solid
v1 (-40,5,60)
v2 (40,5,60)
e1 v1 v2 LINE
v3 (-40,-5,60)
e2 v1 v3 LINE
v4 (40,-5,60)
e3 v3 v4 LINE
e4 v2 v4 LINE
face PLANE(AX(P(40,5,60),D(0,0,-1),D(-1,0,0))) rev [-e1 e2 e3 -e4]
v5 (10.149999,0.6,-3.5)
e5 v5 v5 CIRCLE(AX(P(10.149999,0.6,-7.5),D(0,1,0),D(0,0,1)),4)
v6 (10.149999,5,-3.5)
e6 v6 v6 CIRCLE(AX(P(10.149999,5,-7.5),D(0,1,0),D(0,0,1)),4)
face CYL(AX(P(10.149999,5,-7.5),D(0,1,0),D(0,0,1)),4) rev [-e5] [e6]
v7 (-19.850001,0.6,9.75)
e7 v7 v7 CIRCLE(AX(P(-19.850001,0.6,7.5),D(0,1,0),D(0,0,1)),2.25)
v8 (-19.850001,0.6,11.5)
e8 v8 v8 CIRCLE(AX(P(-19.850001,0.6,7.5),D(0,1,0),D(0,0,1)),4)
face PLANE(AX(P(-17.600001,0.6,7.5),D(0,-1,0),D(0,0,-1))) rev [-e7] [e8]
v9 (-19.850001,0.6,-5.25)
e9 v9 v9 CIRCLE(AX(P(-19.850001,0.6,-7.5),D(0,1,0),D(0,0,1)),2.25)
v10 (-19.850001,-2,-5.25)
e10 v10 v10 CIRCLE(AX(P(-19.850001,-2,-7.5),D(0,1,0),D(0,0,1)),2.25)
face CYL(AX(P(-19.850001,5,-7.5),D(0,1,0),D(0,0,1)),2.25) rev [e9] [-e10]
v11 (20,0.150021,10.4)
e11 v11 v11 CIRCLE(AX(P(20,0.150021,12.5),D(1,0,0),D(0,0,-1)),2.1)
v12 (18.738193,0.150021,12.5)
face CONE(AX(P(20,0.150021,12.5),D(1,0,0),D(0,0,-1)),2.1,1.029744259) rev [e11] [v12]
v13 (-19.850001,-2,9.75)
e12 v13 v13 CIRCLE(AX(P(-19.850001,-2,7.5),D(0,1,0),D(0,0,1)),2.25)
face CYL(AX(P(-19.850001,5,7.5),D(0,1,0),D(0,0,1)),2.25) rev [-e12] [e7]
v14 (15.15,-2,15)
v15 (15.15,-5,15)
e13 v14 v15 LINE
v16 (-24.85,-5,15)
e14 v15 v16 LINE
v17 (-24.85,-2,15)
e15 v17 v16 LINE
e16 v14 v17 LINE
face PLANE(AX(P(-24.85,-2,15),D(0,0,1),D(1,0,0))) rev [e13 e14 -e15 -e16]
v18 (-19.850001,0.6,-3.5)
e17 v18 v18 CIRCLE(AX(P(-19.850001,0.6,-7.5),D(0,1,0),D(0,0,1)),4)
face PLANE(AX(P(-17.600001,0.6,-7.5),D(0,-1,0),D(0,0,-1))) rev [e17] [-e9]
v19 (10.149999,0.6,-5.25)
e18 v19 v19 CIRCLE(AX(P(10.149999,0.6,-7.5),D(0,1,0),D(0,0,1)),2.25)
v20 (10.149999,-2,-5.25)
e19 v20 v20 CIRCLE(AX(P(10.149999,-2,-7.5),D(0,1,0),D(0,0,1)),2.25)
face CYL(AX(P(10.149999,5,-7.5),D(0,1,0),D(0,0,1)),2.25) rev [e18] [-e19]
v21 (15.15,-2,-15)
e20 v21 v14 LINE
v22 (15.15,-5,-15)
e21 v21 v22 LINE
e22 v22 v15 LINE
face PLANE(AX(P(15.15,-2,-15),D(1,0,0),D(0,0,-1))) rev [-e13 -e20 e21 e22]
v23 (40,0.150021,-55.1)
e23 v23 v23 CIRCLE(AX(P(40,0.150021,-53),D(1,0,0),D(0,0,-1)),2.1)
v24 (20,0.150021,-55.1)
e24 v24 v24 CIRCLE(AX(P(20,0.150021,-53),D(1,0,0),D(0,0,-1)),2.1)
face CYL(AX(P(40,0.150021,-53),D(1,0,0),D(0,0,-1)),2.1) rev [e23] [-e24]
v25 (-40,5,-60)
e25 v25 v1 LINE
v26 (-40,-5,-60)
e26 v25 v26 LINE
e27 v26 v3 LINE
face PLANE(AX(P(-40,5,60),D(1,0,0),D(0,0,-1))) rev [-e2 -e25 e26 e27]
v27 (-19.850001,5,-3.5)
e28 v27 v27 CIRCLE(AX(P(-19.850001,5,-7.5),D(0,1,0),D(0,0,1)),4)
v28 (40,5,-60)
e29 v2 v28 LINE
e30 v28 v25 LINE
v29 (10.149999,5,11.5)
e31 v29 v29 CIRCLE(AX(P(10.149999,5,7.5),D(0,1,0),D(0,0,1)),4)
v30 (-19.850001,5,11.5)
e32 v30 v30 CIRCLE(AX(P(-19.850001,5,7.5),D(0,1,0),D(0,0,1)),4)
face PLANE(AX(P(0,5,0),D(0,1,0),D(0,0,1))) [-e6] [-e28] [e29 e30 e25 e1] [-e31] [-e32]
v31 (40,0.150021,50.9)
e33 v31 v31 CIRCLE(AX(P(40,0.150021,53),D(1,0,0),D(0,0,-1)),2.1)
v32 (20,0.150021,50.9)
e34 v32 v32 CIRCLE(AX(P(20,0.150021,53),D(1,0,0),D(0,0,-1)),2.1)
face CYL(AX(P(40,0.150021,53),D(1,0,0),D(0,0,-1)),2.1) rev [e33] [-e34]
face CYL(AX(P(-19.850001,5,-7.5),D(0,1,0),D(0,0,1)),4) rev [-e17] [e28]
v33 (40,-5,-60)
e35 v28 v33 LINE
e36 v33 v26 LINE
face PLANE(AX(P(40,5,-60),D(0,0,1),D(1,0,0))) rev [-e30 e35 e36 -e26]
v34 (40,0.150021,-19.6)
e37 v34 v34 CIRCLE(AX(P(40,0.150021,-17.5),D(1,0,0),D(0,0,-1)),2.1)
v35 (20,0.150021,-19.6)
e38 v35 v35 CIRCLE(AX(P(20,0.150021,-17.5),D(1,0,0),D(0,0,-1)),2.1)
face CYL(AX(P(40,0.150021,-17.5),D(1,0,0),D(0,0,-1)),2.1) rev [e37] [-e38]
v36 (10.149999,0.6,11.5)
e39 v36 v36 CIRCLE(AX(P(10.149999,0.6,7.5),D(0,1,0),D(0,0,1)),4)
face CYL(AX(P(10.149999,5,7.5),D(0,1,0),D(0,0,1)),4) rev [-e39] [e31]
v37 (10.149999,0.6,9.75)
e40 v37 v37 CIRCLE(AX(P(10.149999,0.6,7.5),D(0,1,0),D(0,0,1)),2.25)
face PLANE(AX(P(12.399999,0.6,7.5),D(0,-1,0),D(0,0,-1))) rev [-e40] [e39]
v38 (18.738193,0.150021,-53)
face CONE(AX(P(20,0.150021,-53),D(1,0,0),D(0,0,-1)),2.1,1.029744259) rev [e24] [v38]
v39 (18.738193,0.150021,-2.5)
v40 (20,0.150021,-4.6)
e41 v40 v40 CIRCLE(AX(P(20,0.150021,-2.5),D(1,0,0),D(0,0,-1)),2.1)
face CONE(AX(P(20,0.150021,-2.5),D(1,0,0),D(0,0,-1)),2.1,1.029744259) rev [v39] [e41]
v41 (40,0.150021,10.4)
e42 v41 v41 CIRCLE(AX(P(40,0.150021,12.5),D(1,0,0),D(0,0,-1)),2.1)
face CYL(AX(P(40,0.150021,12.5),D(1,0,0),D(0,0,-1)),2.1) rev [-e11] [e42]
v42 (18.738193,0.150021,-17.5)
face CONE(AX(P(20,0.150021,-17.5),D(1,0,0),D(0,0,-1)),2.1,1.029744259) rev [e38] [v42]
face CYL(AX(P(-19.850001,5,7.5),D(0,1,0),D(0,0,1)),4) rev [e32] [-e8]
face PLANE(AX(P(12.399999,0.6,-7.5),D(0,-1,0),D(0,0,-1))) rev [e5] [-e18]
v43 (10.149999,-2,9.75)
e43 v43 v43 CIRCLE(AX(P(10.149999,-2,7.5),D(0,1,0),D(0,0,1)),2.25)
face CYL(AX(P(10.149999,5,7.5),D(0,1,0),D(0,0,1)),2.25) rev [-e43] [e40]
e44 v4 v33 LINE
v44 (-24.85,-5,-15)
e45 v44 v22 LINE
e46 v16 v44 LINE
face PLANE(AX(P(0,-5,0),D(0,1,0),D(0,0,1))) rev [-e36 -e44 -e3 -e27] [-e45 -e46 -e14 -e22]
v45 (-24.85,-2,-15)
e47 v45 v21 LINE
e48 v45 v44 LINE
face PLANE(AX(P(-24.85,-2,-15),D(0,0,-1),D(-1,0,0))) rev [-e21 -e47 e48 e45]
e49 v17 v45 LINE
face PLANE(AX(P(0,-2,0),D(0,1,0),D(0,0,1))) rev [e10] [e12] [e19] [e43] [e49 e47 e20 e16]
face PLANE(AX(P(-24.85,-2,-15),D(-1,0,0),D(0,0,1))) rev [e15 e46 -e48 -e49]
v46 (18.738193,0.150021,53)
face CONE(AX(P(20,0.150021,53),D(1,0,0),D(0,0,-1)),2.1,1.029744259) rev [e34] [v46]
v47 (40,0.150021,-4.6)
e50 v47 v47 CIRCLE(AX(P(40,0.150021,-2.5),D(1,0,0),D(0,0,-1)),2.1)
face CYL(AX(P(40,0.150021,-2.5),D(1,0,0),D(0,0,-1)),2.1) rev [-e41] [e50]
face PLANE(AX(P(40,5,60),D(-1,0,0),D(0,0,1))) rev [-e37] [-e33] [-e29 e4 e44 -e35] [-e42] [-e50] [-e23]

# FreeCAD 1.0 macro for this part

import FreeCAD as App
import Part
import Sketcher
from FreeCAD import Vector
Q = App.Units.Quantity


def add_polygon(sketch, points):
    """Adds a closed chain of lines whose ends are joined by coincident constraints."""
    first, n = sketch.GeometryCount, len(points)
    for a, b in zip(points, points[1:] + points[:1]):
        sketch.addGeometry(Part.LineSegment(App.Vector(*a, 0), App.Vector(*b, 0)), False)
    for i in range(n):
        sketch.addConstraint(Sketcher.Constraint("Coincident", first + i, 2, first + (i + 1) % n, 1))

doc = App.newDocument("Part")
body = doc.addObject("PartDesign::Body", "Body")

sketch1 = body.newObject("Sketcher::SketchObject", "Sketch")
sketch1.AttachmentSupport = (doc.getObject("XZ_Plane"), [""])
sketch1.MapMode = "FlatFace"
add_polygon(sketch1, [(-40, -60), (-40, 60), (40, 60), (40, -60)])
sketch1.addConstraint([
    Sketcher.Constraint("Vertical", 0),
    Sketcher.Constraint("Horizontal", 1),
    Sketcher.Constraint("Vertical", 2),
    Sketcher.Constraint("Horizontal", 3),
    Sketcher.Constraint("Symmetric", 0, 2, 2, 2, -1, 1),
    Sketcher.Constraint("DistanceX", 1, 1, 1, 2, Q("80 mm")),
    Sketcher.Constraint("DistanceY", 0, 1, 0, 2, Q("120 mm")),
])
pad1 = body.newObject("PartDesign::Pad", "Pad")
pad1.Profile = sketch1
pad1.Length = 10
pad1.Midplane = True

sketch2 = body.newObject("Sketcher::SketchObject", "Sketch001")
sketch2.AttachmentSupport = (doc.getObject("YZ_Plane"), [""])
sketch2.MapMode = "FlatFace"
sketch2.AttachmentOffset = App.Placement(Vector(0, 0, 40), App.Rotation())
sketch2.addGeometry([
    Part.Circle(Vector(0.2, -53, 0), Vector(0, 0, 1), 2.1),
    Part.Circle(Vector(0.2, -17.5, 0), Vector(0, 0, 1), 2.1),
    Part.Circle(Vector(0.2, -2.5, 0), Vector(0, 0, 1), 2.1),
    Part.Circle(Vector(0.2, 12.5, 0), Vector(0, 0, 1), 2.1),
    Part.Circle(Vector(0.2, 53, 0), Vector(0, 0, 1), 2.1),
], False)
sketch2.addConstraint([
    Sketcher.Constraint("Equal", 0, 1),
    Sketcher.Constraint("Equal", 1, 2),
    Sketcher.Constraint("Equal", 2, 3),
    Sketcher.Constraint("Equal", 3, 4),
    Sketcher.Constraint("Symmetric", 0, 3, 4, 3, -1),
    Sketcher.Constraint("Vertical", 0, 3, 1, 3),
    Sketcher.Constraint("Vertical", 1, 3, 2, 3),
    Sketcher.Constraint("Vertical", 2, 3, 3, 3),
    Sketcher.Constraint("Diameter", 0, Q("4.2 mm")),
    Sketcher.Constraint("DistanceY", 0, 3, -1, 1, Q("53 mm")),
    Sketcher.Constraint("DistanceY", 1, 3, 2, 3, Q("15 mm")),
    Sketcher.Constraint("DistanceY", 2, 3, 3, 3, Q("15 mm")),
    Sketcher.Constraint("DistanceY", 1, 3, -1, 1, Q("17.5 mm")),
    Sketcher.Constraint("DistanceX", -1, 1, 0, 3, Q("0.150021 mm")),
])
doc.recompute()
hole = body.newObject("PartDesign::Hole", "Hole")
hole.Profile = sketch2
hole.ThreadType = "None"
hole.Diameter = 4.2
hole.DepthType = "Dimension"
hole.Depth = 20
hole.DrillPoint = "Angled"
hole.DrillPointAngle = 118

sketch3 = body.newObject("Sketcher::SketchObject", "Sketch002")
sketch3.AttachmentSupport = (doc.getObject("XZ_Plane"), [""])
sketch3.MapMode = "FlatFace"
sketch3.AttachmentOffset = App.Placement(Vector(0, 0, 5), App.Rotation())
add_polygon(sketch3, [(-25, 15), (-25, -15), (15, -15), (15, 15)])
sketch3.addConstraint([
    Sketcher.Constraint("Vertical", 0),
    Sketcher.Constraint("Horizontal", 1),
    Sketcher.Constraint("Vertical", 2),
    Sketcher.Constraint("Horizontal", 3),
    Sketcher.Constraint("DistanceX", 1, 1, 1, 2, Q("40 mm")),
    Sketcher.Constraint("DistanceY", 0, 2, 0, 1, Q("30 mm")),
    Sketcher.Constraint("DistanceY", 0, 2, -1, 1, Q("15 mm")),
    Sketcher.Constraint("DistanceX", 0, 2, -1, 1, Q("24.85 mm")),
])
pocket1 = body.newObject("PartDesign::Pocket", "Pocket")
pocket1.Profile = sketch3
pocket1.Length = 3

sketch4 = body.newObject("Sketcher::SketchObject", "Sketch003")
sketch4.AttachmentSupport = (doc.getObject("XZ_Plane"), [""])
sketch4.MapMode = "FlatFace"
sketch4.AttachmentOffset = App.Placement(Vector(0, 0, -5), App.Rotation())
sketch4.addGeometry([
    Part.Circle(Vector(-19.9, -7.5, 0), Vector(0, 0, 1), 2.2),
    Part.Circle(Vector(10.1, -7.5, 0), Vector(0, 0, 1), 2.2),
    Part.Circle(Vector(10.1, 7.5, 0), Vector(0, 0, 1), 2.2),
    Part.Circle(Vector(-19.9, 7.5, 0), Vector(0, 0, 1), 2.2),
], False)
sketch4.addConstraint([
    Sketcher.Constraint("Equal", 0, 1),
    Sketcher.Constraint("Equal", 1, 2),
    Sketcher.Constraint("Equal", 2, 3),
    Sketcher.Constraint("Symmetric", 1, 3, 2, 3, -1),
    Sketcher.Constraint("Symmetric", 0, 3, 3, 3, -1),
    Sketcher.Constraint("Horizontal", 0, 3, 1, 3),
    Sketcher.Constraint("Diameter", 0, Q("4.5 mm")),
    Sketcher.Constraint("DistanceX", 0, 3, 1, 3, Q("30 mm")),
    Sketcher.Constraint("DistanceY", 1, 3, 2, 3, Q("15 mm")),
    Sketcher.Constraint("DistanceX", 0, 3, -1, 1, Q("19.850001 mm")),
])
doc.recompute()
hole2 = body.newObject("PartDesign::Hole", "Hole001")
hole2.Profile = sketch4
hole2.ThreadType = "None"
hole2.Diameter = 4.5
hole2.DepthType = "Dimension"
hole2.Depth = 20
hole2.DrillPoint = "Angled"
hole2.DrillPointAngle = 118
hole2.HoleCutType = "Counterbore"
hole2.HoleCutDiameter = 8
hole2.HoleCutDepth = 4.4
hole2.Reversed = True

doc.recompute()
